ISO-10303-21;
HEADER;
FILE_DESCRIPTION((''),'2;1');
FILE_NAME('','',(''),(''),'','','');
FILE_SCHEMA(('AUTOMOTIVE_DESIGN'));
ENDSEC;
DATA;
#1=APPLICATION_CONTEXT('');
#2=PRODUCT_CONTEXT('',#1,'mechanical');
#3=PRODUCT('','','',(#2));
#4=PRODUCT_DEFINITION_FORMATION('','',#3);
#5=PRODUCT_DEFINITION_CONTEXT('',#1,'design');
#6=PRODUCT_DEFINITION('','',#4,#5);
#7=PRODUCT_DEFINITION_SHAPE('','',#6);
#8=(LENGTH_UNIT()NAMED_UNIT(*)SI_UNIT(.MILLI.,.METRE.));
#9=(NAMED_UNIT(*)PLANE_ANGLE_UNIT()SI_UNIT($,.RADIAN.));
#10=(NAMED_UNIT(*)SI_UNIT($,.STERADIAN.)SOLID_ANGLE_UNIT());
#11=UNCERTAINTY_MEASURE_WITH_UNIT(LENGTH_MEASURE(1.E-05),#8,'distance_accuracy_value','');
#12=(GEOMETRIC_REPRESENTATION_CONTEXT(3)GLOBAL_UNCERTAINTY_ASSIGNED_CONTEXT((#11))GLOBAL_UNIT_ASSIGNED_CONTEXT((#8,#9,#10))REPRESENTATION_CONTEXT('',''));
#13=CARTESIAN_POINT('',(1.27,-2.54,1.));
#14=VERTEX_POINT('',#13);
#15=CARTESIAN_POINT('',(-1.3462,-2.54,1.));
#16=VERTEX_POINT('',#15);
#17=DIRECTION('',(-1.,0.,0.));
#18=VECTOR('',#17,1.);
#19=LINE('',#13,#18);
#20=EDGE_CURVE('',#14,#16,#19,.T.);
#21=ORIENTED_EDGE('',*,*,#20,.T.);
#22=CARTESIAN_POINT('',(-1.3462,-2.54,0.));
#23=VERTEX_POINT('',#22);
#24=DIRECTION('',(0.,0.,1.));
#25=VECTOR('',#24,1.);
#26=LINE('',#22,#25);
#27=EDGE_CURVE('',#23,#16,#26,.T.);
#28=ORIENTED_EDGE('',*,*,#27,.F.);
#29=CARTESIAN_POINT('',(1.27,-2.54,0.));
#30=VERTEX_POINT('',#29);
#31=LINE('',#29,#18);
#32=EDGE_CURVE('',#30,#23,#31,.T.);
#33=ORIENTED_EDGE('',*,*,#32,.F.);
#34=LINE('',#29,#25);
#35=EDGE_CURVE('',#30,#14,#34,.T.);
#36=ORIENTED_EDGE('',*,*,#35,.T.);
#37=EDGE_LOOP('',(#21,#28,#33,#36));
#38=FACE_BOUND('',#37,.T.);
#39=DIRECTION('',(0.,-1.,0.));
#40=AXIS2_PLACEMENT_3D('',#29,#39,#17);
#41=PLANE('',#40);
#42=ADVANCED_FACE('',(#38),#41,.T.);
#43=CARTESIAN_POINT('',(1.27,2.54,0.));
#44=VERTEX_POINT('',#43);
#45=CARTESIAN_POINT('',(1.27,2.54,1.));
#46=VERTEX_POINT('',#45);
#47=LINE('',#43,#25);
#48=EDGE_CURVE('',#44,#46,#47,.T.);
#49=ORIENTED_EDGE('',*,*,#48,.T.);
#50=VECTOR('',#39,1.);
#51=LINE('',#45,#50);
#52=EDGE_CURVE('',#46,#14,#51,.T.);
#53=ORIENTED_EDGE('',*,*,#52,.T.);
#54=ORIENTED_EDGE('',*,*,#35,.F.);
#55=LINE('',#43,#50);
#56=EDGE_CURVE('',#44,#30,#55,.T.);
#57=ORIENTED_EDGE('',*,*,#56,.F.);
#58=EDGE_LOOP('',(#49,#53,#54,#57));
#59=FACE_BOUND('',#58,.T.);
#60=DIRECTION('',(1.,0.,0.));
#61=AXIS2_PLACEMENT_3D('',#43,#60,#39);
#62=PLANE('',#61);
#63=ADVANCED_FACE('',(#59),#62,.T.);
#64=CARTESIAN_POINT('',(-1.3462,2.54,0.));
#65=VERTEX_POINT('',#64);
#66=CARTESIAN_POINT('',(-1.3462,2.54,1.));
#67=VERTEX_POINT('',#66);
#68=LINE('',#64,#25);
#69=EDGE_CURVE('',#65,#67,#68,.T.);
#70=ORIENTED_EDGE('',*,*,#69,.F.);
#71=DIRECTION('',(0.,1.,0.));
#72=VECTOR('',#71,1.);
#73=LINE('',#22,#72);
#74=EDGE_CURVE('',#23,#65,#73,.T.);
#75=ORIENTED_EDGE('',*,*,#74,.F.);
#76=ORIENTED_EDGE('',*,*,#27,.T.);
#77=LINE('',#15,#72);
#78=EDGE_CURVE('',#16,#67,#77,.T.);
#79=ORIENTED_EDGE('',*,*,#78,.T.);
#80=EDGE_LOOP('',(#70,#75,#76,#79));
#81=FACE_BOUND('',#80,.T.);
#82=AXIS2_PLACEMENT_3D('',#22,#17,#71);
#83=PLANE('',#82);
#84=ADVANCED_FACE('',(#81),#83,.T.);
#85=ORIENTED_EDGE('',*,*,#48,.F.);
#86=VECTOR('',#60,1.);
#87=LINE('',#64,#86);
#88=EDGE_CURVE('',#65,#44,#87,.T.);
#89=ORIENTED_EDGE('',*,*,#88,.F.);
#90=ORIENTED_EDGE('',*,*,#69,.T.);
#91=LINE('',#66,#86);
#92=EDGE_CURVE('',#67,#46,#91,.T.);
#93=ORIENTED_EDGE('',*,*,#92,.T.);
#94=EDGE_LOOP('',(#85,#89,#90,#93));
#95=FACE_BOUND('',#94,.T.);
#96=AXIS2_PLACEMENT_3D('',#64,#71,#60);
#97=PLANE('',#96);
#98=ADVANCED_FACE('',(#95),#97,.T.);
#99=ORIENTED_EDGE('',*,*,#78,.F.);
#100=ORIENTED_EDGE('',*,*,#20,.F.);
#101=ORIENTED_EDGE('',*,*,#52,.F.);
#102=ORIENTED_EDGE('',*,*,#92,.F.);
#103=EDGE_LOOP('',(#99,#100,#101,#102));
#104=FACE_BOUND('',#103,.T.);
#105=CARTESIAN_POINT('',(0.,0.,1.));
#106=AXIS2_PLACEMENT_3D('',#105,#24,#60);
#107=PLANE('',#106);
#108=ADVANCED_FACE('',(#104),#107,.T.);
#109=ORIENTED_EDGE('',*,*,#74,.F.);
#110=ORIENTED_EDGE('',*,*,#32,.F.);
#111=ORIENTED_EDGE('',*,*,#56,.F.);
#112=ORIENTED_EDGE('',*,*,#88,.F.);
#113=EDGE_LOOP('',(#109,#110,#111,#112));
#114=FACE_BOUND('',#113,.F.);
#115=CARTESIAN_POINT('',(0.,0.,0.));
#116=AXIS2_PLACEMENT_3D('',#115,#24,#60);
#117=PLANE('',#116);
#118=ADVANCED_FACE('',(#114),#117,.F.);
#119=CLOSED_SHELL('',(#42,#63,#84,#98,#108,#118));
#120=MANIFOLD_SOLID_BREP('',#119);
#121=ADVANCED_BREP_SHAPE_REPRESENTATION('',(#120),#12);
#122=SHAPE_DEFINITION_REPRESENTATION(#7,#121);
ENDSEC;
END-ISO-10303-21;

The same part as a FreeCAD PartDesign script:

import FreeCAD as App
import Part
import Sketcher
Q = App.Units.Quantity


def add_polygon(sketch, points):
    """Adds a closed chain of lines whose ends are joined by coincident constraints."""
    first, n = sketch.GeometryCount, len(points)
    for a, b in zip(points, points[1:] + points[:1]):
        sketch.addGeometry(Part.LineSegment(App.Vector(*a, 0), App.Vector(*b, 0)), False)
    for i in range(n):
        sketch.addConstraint(Sketcher.Constraint("Coincident", first + i, 2, first + (i + 1) % n, 1))

doc = App.newDocument("Part")
body = doc.addObject("PartDesign::Body", "Body")

sketch1 = body.newObject("Sketcher::SketchObject", "Sketch")
sketch1.AttachmentSupport = (doc.getObject("XY_Plane"), [""])
sketch1.MapMode = "FlatFace"
add_polygon(sketch1, [(1.3, 2.5), (-1.3, 2.5), (-1.3, -2.5), (1.3, -2.5)])
sketch1.addConstraint([
    Sketcher.Constraint("Horizontal", 0),
    Sketcher.Constraint("Vertical", 1),
    Sketcher.Constraint("Horizontal", 2),
    Sketcher.Constraint("Vertical", 3),
    Sketcher.Constraint("DistanceY", 1, 2, 1, 1, Q("0.2 in")),
    Sketcher.Constraint("DistanceY", -1, 1, 0, 2, Q("0.1 in")),
    Sketcher.Constraint("DistanceX", 0, 2, 0, 1, Q("0.103 in")),
    Sketcher.Constraint("DistanceX", -1, 1, 2, 2, Q("0.05 in")),
])
pad1 = body.newObject("PartDesign::Pad", "Pad")
pad1.Profile = sketch1
pad1.Length = 1

doc.recompute()
